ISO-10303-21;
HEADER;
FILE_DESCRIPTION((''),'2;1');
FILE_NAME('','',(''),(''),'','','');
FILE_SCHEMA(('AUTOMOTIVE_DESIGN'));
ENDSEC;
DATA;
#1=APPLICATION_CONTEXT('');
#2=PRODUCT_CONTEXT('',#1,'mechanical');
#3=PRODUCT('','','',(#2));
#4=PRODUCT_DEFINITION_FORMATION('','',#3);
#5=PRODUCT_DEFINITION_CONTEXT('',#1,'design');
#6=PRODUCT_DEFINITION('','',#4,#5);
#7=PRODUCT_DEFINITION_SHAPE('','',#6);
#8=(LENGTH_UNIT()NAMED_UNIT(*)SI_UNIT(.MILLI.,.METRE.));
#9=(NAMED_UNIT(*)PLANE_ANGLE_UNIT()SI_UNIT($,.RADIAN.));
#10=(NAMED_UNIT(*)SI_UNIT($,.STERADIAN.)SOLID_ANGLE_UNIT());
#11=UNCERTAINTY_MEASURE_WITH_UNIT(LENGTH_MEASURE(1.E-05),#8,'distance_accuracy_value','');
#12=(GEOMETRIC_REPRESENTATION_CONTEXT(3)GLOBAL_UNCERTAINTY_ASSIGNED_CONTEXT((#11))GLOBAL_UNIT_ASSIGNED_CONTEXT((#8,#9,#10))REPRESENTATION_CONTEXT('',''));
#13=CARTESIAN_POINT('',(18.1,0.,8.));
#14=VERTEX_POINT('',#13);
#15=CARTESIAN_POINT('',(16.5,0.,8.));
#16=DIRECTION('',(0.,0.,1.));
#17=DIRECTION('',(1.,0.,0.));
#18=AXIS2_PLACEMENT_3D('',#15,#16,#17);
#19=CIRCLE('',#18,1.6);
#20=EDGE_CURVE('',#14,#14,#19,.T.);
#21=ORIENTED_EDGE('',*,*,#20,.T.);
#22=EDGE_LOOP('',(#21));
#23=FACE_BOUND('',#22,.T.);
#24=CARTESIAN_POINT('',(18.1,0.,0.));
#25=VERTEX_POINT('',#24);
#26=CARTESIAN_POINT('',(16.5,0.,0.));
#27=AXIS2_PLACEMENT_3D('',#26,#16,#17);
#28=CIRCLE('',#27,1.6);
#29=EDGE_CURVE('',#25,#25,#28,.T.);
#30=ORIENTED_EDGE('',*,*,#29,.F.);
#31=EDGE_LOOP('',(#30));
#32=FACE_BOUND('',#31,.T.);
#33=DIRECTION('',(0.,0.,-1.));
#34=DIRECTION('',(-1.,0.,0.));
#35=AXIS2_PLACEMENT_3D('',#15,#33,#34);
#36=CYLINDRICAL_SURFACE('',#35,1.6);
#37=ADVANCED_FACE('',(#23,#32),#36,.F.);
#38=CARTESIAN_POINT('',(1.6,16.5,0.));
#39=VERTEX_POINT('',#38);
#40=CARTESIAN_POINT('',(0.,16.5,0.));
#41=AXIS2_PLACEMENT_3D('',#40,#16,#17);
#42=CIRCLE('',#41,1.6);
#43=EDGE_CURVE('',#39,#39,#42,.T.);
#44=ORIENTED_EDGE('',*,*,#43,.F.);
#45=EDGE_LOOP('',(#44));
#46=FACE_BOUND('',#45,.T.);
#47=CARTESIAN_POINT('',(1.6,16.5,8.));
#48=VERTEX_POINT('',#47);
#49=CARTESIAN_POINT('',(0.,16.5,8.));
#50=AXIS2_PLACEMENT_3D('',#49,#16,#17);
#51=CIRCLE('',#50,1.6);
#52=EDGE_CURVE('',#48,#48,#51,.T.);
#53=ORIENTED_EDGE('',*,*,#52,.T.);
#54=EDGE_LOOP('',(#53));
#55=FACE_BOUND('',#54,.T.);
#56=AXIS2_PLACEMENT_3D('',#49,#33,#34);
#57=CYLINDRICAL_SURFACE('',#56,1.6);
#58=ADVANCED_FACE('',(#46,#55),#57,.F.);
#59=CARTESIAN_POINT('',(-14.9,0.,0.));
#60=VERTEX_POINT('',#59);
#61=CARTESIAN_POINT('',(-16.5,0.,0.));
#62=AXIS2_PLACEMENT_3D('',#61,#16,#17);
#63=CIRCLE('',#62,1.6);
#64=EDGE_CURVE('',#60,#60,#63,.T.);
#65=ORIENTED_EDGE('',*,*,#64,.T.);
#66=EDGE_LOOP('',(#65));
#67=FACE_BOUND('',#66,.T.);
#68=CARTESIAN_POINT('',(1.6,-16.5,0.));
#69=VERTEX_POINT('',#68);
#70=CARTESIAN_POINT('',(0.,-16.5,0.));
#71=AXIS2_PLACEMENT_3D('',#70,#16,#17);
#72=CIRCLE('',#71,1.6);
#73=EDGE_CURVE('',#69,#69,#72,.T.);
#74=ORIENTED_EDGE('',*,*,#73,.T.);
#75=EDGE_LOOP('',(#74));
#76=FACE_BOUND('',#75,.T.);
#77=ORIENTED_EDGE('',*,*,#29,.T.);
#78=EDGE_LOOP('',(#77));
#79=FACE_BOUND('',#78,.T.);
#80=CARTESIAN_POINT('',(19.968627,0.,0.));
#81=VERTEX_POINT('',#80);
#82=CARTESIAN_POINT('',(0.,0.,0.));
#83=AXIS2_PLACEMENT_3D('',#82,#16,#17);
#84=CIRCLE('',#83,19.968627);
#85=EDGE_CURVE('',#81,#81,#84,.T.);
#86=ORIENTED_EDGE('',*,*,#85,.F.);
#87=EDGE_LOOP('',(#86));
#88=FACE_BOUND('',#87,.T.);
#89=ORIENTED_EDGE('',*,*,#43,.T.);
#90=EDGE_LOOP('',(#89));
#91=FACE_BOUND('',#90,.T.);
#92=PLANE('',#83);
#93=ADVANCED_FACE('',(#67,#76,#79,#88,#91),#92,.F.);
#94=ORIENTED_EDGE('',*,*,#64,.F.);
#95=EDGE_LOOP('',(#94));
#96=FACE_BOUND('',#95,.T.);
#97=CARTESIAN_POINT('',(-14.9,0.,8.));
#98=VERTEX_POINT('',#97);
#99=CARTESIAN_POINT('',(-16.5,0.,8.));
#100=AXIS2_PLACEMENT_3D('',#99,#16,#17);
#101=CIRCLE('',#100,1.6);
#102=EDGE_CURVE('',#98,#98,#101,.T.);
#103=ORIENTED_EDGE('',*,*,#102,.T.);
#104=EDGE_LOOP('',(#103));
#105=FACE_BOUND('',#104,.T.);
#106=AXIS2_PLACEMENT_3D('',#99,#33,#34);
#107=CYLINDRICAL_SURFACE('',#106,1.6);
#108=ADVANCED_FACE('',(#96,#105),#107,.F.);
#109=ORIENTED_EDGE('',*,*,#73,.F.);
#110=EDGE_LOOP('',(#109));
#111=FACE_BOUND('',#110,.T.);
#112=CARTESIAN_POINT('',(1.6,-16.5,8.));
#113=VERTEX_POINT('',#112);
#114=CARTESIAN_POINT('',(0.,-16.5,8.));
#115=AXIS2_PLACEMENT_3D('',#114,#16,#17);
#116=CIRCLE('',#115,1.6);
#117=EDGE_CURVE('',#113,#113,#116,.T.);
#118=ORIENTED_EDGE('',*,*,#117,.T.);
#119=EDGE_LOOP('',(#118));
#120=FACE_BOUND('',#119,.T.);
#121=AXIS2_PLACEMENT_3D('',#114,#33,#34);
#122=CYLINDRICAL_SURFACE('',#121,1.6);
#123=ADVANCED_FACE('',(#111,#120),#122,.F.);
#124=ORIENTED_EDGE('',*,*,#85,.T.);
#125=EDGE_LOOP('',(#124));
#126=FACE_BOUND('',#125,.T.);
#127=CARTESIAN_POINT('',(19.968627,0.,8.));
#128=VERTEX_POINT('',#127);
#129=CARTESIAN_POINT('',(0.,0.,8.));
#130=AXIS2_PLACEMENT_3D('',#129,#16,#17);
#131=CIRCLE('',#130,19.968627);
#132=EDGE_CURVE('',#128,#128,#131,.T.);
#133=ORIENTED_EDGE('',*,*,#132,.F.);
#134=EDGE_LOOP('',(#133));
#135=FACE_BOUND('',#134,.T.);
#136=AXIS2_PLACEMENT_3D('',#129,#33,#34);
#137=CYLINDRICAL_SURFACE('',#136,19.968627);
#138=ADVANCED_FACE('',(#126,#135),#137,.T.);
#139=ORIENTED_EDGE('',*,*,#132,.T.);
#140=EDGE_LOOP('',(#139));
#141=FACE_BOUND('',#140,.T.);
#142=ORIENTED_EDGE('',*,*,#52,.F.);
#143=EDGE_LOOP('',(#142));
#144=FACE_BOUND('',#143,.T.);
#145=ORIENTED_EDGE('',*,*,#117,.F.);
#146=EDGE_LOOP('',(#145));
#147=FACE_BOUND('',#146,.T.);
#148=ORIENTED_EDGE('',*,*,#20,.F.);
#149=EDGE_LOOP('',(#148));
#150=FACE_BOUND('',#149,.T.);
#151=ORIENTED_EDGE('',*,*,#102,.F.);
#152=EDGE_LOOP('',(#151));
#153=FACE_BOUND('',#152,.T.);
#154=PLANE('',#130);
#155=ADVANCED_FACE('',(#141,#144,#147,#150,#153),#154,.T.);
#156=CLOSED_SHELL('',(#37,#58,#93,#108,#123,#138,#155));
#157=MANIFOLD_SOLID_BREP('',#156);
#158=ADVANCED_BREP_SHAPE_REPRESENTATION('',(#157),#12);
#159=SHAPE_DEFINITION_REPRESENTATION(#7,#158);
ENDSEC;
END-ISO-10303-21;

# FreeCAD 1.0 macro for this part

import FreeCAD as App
import Part
import Sketcher
Q = App.Units.Quantity

doc = App.newDocument("Part")
body = doc.addObject("PartDesign::Body", "Body")

# Sketch on XY plane
sketch1 = body.newObject("Sketcher::SketchObject", "Sketch")
sketch1.AttachmentSupport = (doc.getObject("XY_Plane"), [""])
sketch1.MapMode = "FlatFace"
sketch1.addGeometry([
    Part.Circle(App.Vector(0, 0, 0), App.Vector(0, 0, 1), 20),  # 0
    Part.Circle(App.Vector(0, -16.5, 0), App.Vector(0, 0, 1), 1.6),  # 1
    Part.Circle(App.Vector(-16.5, 0, 0), App.Vector(0, 0, 1), 1.6),  # 2
    Part.Circle(App.Vector(16.5, 0, 0), App.Vector(0, 0, 1), 1.6),  # 3
    Part.Circle(App.Vector(0, 16.5, 0), App.Vector(0, 0, 1), 1.6),  # 4
], False)
sketch1.addConstraint([
    Sketcher.Constraint("Coincident", 0, 3, -1, 1),
    Sketcher.Constraint("Equal", 1, 2),
    Sketcher.Constraint("Equal", 2, 3),
    Sketcher.Constraint("Equal", 3, 4),
    Sketcher.Constraint("Symmetric", 2, 3, 3, 3, -1, 1),
    Sketcher.Constraint("Symmetric", 1, 3, 4, 3, -1, 1),
    Sketcher.Constraint("PointOnObject", 1, 3, -2),
    Sketcher.Constraint("PointOnObject", 2, 3, -1),
    Sketcher.Constraint("Diameter", 1, Q("3.2 mm")),
    Sketcher.Constraint("DistanceX", 2, 3, 3, 3, Q("33 mm")),
    Sketcher.Constraint("DistanceY", 1, 3, 4, 3, Q("33 mm")),
    Sketcher.Constraint("Diameter", 0, Q("39.937254 mm")),
])
pad1 = body.newObject("PartDesign::Pad", "Pad")
pad1.Profile = sketch1
pad1.Length = 8

doc.recompute()
